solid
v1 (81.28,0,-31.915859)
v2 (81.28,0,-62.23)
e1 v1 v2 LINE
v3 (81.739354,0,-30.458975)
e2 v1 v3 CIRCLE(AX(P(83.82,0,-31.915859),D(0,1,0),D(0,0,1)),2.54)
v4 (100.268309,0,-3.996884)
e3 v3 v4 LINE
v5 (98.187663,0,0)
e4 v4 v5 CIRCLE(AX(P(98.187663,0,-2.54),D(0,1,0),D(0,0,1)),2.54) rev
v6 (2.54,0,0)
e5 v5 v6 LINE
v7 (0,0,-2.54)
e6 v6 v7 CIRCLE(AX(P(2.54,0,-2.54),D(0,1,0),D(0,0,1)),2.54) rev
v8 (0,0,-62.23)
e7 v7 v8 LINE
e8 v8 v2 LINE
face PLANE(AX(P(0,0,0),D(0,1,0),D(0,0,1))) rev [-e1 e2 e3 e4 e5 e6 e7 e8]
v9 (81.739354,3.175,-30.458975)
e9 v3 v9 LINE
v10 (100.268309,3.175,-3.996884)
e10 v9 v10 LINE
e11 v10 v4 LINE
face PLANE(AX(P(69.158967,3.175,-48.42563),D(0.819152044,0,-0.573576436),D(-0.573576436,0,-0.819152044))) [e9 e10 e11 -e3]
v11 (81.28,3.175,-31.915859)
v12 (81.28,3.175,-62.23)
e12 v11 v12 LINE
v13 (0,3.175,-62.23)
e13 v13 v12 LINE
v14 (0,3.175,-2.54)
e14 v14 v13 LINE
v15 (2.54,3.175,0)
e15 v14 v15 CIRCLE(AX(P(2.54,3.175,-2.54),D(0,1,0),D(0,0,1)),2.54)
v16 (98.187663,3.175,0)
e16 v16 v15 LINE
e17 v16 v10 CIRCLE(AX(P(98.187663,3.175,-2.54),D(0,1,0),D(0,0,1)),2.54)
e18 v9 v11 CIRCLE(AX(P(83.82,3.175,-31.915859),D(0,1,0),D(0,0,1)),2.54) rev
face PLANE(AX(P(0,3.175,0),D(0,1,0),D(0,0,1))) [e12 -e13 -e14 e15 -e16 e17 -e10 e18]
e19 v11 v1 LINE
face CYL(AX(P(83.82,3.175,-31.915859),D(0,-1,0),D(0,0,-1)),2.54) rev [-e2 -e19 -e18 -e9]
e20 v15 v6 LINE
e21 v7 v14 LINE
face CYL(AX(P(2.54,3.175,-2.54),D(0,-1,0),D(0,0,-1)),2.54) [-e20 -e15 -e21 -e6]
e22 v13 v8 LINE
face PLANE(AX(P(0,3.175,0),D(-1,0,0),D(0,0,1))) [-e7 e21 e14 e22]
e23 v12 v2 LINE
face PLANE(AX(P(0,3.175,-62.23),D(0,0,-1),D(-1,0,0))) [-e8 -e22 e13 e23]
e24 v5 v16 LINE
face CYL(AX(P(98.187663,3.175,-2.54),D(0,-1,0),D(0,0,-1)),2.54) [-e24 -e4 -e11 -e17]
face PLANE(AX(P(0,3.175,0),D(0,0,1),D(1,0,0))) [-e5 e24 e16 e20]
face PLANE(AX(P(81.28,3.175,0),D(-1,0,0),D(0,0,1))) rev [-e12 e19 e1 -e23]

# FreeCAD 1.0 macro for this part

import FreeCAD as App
import Part
import Sketcher
Q = App.Units.Quantity


def edges_at(feature, points):
    """Names of the edges that pass closest to the given points."""
    edges = feature.Shape.Edges
    near = lambda p: min(range(len(edges)), key=lambda i: edges[i].distToShape(Part.Vertex(*p))[0])
    return sorted({f"Edge{near(p) + 1}" for p in points})

doc = App.newDocument("Part")
body = doc.addObject("PartDesign::Body", "Body")

# Sketch on XZ plane
sketch1 = doc.addObject("Sketcher::SketchObject", "Sketch")
body.addObject(sketch1)
sketch1.AttachmentSupport = (doc.XZ_Plane, [""])
sketch1.MapMode = "FlatFace"
sketch1.addGeometry(Part.LineSegment(App.Vector(103, 0, 0), App.Vector(81, -31, 0)), False)
sketch1.addGeometry(Part.LineSegment(App.Vector(81, -31, 0), App.Vector(81, -62, 0)), False)
sketch1.addGeometry(Part.LineSegment(App.Vector(81, -62, 0), App.Vector(0, -62, 0)), False)
sketch1.addGeometry(Part.LineSegment(App.Vector(0, -62, 0), App.Vector(0, 0, 0)), False)
sketch1.addGeometry(Part.LineSegment(App.Vector(0, 0, 0), App.Vector(103, 0, 0)), False)
sketch1.addConstraint(Sketcher.Constraint("Coincident", 0, 2, 1, 1))
sketch1.addConstraint(Sketcher.Constraint("Coincident", 1, 2, 2, 1))
sketch1.addConstraint(Sketcher.Constraint("Coincident", 2, 2, 3, 1))
sketch1.addConstraint(Sketcher.Constraint("Coincident", 3, 2, 4, 1))
sketch1.addConstraint(Sketcher.Constraint("Coincident", 4, 2, 0, 1))
sketch1.addConstraint(Sketcher.Constraint("Vertical", 1))
sketch1.addConstraint(Sketcher.Constraint("Horizontal", 2))
sketch1.addConstraint(Sketcher.Constraint("Vertical", 3))
sketch1.addConstraint(Sketcher.Constraint("Horizontal", 4))
sketch1.addConstraint(Sketcher.Constraint("Coincident", 3, 2, -1, 1))
sketch1.addConstraint(Sketcher.Constraint("DistanceX", 2, 2, 2, 1, Q("3.2 in")))
sketch1.addConstraint(Sketcher.Constraint("Angle", 0, Q("-125 deg")))
sketch1.addConstraint(Sketcher.Constraint("DistanceY", 3, 1, 3, 2, Q("2.45 in")))
sketch1.addConstraint(Sketcher.Constraint("DistanceY", 1, 2, 1, 1, Q("1.225 in")))
pad1 = doc.addObject("PartDesign::Pad", "Pad")
body.addObject(pad1)
pad1.Profile = sketch1
pad1.Length = Q("0.125 in")
pad1.Reversed = True
doc.recompute()

fillet = doc.addObject("PartDesign::Fillet", "Fillet")
body.addObject(fillet)
fillet.Base = (pad1, edges_at(pad1, [(0, 1.587, 0), (81.28, 1.587, -31.115), (103.067, 1.587, 0)]))
fillet.Radius = Q("0.1 in")

doc.recompute()
